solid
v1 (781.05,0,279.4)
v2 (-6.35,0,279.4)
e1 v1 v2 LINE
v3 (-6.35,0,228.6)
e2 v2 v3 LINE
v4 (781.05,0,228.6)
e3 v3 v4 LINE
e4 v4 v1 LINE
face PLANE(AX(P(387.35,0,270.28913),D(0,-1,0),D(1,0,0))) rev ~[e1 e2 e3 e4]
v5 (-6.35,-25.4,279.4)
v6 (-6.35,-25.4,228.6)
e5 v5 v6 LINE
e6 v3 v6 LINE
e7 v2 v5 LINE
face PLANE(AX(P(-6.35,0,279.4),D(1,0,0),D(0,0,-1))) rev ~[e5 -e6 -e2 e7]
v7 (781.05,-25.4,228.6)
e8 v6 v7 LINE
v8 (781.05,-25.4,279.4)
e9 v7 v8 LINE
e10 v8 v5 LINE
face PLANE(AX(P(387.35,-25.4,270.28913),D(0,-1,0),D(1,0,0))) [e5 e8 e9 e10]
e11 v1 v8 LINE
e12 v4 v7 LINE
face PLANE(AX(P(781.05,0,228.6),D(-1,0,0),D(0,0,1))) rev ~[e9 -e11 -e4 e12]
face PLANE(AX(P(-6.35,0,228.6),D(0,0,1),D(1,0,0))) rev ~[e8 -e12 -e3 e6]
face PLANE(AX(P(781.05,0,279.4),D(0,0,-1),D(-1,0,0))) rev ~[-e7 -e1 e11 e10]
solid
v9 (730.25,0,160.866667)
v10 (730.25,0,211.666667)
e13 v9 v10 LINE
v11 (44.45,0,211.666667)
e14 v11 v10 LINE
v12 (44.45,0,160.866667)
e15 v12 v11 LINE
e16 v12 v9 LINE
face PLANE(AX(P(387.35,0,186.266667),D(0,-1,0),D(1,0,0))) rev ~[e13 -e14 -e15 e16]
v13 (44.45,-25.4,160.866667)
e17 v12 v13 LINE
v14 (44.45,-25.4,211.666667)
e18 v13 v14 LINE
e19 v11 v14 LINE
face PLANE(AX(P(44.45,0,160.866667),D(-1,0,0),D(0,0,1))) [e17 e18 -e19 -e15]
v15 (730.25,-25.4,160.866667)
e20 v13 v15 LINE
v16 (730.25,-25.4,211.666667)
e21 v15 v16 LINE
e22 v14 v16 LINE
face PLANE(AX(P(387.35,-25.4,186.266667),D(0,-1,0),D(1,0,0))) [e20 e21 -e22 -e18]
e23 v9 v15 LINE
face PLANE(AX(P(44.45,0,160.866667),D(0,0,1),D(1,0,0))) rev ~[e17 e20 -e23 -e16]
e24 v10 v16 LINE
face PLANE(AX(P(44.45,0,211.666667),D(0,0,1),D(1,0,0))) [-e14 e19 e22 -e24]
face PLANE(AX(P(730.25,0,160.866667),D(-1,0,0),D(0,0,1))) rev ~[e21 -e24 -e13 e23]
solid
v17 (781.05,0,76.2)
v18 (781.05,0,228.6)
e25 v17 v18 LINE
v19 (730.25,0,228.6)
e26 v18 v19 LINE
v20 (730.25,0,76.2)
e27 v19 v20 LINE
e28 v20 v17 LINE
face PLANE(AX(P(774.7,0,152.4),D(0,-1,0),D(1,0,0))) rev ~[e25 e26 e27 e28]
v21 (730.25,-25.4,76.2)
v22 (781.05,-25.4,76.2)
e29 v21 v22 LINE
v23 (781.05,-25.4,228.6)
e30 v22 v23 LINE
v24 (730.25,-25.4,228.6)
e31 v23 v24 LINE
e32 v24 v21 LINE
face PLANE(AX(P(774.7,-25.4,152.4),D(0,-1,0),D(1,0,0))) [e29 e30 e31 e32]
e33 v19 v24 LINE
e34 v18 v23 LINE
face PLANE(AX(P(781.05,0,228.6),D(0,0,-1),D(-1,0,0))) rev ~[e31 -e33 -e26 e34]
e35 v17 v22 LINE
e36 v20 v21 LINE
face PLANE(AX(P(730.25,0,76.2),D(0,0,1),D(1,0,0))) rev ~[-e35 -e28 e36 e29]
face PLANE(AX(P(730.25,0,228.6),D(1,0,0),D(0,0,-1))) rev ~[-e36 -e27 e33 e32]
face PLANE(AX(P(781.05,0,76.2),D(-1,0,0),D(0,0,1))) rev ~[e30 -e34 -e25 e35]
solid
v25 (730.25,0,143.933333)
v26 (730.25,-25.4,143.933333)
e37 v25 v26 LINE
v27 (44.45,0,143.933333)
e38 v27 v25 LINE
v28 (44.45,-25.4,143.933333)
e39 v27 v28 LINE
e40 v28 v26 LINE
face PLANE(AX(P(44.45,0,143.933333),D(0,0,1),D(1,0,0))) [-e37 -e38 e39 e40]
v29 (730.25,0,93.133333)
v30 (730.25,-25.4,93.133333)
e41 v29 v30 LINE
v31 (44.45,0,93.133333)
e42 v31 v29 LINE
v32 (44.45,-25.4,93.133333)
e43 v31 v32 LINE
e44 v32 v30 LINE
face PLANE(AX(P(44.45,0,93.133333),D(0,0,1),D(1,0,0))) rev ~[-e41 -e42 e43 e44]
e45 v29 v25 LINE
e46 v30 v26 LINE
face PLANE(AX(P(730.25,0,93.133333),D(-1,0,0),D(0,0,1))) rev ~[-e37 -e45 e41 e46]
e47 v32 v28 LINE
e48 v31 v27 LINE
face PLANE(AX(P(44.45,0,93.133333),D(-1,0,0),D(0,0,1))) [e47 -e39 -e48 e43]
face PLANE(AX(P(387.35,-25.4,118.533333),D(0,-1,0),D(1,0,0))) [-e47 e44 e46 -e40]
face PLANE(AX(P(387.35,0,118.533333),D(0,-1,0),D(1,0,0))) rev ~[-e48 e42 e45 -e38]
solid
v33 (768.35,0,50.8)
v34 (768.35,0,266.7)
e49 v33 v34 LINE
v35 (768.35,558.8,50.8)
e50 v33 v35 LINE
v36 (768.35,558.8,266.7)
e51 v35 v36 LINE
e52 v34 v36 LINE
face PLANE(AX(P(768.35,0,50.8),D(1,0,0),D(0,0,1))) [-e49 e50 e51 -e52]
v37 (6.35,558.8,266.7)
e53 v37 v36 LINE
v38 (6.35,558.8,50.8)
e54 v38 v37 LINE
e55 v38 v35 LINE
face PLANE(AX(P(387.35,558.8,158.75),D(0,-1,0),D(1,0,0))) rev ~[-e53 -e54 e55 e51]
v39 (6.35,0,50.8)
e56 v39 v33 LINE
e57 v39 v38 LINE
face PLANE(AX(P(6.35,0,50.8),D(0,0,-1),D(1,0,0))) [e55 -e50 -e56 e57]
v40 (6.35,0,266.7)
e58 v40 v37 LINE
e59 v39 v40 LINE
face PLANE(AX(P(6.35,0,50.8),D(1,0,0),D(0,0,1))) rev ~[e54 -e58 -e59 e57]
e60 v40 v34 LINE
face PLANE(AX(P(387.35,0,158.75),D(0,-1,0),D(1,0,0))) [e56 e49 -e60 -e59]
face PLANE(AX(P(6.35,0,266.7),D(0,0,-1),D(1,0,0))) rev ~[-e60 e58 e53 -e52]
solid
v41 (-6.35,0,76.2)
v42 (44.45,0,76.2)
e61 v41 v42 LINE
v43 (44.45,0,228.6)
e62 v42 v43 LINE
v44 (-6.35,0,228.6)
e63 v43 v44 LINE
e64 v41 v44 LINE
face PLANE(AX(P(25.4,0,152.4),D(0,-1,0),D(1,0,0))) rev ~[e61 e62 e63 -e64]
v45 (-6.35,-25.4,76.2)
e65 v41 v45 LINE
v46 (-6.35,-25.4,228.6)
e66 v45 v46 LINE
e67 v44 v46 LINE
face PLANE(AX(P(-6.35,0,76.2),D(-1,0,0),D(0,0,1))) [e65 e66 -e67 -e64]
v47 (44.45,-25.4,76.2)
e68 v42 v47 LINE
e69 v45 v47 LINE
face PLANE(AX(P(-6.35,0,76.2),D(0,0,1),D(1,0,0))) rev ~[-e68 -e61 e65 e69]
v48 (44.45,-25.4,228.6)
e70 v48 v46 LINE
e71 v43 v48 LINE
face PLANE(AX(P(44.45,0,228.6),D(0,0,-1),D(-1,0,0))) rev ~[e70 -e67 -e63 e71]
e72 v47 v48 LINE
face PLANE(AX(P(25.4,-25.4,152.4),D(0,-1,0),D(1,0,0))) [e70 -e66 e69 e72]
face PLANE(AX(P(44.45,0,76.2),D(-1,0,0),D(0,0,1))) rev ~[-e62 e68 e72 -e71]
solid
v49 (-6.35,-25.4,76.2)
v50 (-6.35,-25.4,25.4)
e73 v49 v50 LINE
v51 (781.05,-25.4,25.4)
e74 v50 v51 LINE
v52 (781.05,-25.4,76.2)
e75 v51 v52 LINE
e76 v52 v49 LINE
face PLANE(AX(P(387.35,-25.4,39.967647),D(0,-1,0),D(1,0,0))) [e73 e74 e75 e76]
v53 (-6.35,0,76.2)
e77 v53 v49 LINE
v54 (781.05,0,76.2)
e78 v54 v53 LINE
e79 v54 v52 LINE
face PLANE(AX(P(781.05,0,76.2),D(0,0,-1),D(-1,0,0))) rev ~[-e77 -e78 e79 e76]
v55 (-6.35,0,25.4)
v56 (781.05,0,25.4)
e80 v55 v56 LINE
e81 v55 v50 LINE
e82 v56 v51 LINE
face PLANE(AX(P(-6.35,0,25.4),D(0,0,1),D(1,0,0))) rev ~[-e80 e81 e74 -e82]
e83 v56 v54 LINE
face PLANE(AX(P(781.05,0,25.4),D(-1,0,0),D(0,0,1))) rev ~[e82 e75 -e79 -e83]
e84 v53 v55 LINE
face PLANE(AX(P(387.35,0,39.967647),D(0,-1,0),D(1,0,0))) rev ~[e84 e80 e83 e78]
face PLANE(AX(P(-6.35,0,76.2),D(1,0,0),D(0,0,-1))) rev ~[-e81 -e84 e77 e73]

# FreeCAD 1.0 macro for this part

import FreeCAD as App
import Part
import Sketcher

V = App.Vector
Q = App.Units.Quantity

doc = App.newDocument("Part")
params = doc.addObject("Spreadsheet::Sheet", "Params")
for row, (alias, value) in enumerate([
    ("sketch1_width", "30 in"),
    ("sketch1_height", "8.5 in"),
    ("pad1_length", "22 in"),
    ("sketch2_width", "31 in"),
    ("sketch2_height", "2 in"),
    ("pad2_length", "1 in"),
    ("sketch3_width", "2 in"),
    ("sketch3_height", "6 in"),
    ("pad3_length", "1 in"),
    ("sketch4_width", "27 in"),
    ("sketch4_height", "2 in"),
    ("pad4_length", "1 in"),
    ("sketch5_width", "27 in"),
    ("sketch5_height", "2 in"),
    ("pad5_length", "1 in"),
    ("sketch6_width", "31 in"),
    ("sketch6_height", "2 in"),
    ("pad6_length", "1 in"),
    ("sketch7_width", "2 in"),
    ("sketch7_height", "6 in"),
    ("pad7_length", "1 in"),
], start=1):
    params.set(f"A{row}", alias)
    params.set(f"B{row}", "=" + value)
    params.setAlias(f"B{row}", alias)

body = doc.addObject("PartDesign::Body", "Body")

sketch1 = body.newObject("Sketcher::SketchObject", "Sketch")
sketch1.AttachmentSupport = (doc.getObject("XZ_Plane"), [""])
sketch1.MapMode = "FlatFace"
sketch1.addGeometry(Part.LineSegment(V(6, 267, 0), V(6, 51, 0)), False)
sketch1.addGeometry(Part.LineSegment(V(6, 51, 0), V(768, 51, 0)), False)
sketch1.addGeometry(Part.LineSegment(V(768, 51, 0), V(768, 267, 0)), False)
sketch1.addGeometry(Part.LineSegment(V(768, 267, 0), V(6, 267, 0)), False)
sketch1.addConstraint(Sketcher.Constraint("Coincident", 0, 2, 1, 1))
sketch1.addConstraint(Sketcher.Constraint("Coincident", 1, 2, 2, 1))
sketch1.addConstraint(Sketcher.Constraint("Coincident", 2, 2, 3, 1))
sketch1.addConstraint(Sketcher.Constraint("Coincident", 3, 2, 0, 1))
sketch1.addConstraint(Sketcher.Constraint("Vertical", 0))
sketch1.addConstraint(Sketcher.Constraint("Horizontal", 1))
sketch1.addConstraint(Sketcher.Constraint("Vertical", 2))
sketch1.addConstraint(Sketcher.Constraint("Horizontal", 3))
sketch1.addConstraint(Sketcher.Constraint("DistanceX", 1, 1, 1, 2, Q("30 in")))
sketch1.addConstraint(Sketcher.Constraint("DistanceY", 0, 2, 0, 1, Q("8.5 in")))
sketch1.addConstraint(Sketcher.Constraint("DistanceY", -1, 1, 0, 2, Q("2 in")))
sketch1.addConstraint(Sketcher.Constraint("DistanceX", -1, 1, 0, 2, Q("0.25 in")))
sketch1.setExpression("Constraints[8]", "Params.sketch1_width")
sketch1.setExpression("Constraints[9]", "Params.sketch1_height")
pad1 = body.newObject("PartDesign::Pad", "Pad")
pad1.Profile = sketch1
pad1.setExpression("Length", "Params.pad1_length")
pad1.Reversed = True
body2 = doc.addObject("PartDesign::Body", "Body001")

sketch2 = body2.newObject("Sketcher::SketchObject", "Sketch001")
sketch2.AttachmentSupport = (doc.getObject("XZ_Plane001"), [""])
sketch2.MapMode = "FlatFace"
sketch2.addGeometry(Part.LineSegment(V(-6, 229, 0), V(781, 229, 0)), False)
sketch2.addGeometry(Part.LineSegment(V(781, 229, 0), V(781, 279, 0)), False)
sketch2.addGeometry(Part.LineSegment(V(781, 279, 0), V(-6, 279, 0)), False)
sketch2.addGeometry(Part.LineSegment(V(-6, 279, 0), V(-6, 229, 0)), False)
sketch2.addConstraint(Sketcher.Constraint("Coincident", 0, 2, 1, 1))
sketch2.addConstraint(Sketcher.Constraint("Coincident", 1, 2, 2, 1))
sketch2.addConstraint(Sketcher.Constraint("Coincident", 2, 2, 3, 1))
sketch2.addConstraint(Sketcher.Constraint("Coincident", 3, 2, 0, 1))
sketch2.addConstraint(Sketcher.Constraint("Horizontal", 0))
sketch2.addConstraint(Sketcher.Constraint("Vertical", 1))
sketch2.addConstraint(Sketcher.Constraint("Horizontal", 2))
sketch2.addConstraint(Sketcher.Constraint("Vertical", 3))
sketch2.addConstraint(Sketcher.Constraint("DistanceX", 0, 1, 0, 2, Q("31 in")))
sketch2.addConstraint(Sketcher.Constraint("DistanceY", 1, 1, 1, 2, Q("2 in")))
sketch2.addConstraint(Sketcher.Constraint("DistanceY", -1, 1, 0, 2, Q("9 in")))
sketch2.addConstraint(Sketcher.Constraint("DistanceX", -1, 1, 0, 2, Q("30.75 in")))
sketch2.setExpression("Constraints[8]", "Params.sketch2_width")
sketch2.setExpression("Constraints[9]", "Params.sketch2_height")
pad2 = body2.newObject("PartDesign::Pad", "Pad001")
pad2.Profile = sketch2
pad2.setExpression("Length", "Params.pad2_length")
body3 = doc.addObject("PartDesign::Body", "Body002")

sketch3 = body3.newObject("Sketcher::SketchObject", "Sketch002")
sketch3.AttachmentSupport = (doc.getObject("XZ_Plane002"), [""])
sketch3.MapMode = "FlatFace"
sketch3.addGeometry(Part.LineSegment(V(781, 76, 0), V(781, 229, 0)), False)
sketch3.addGeometry(Part.LineSegment(V(781, 229, 0), V(730, 229, 0)), False)
sketch3.addGeometry(Part.LineSegment(V(730, 229, 0), V(730, 76, 0)), False)
sketch3.addGeometry(Part.LineSegment(V(730, 76, 0), V(781, 76, 0)), False)
sketch3.addConstraint(Sketcher.Constraint("Coincident", 0, 2, 1, 1))
sketch3.addConstraint(Sketcher.Constraint("Coincident", 1, 2, 2, 1))
sketch3.addConstraint(Sketcher.Constraint("Coincident", 2, 2, 3, 1))
sketch3.addConstraint(Sketcher.Constraint("Coincident", 3, 2, 0, 1))
sketch3.addConstraint(Sketcher.Constraint("Vertical", 0))
sketch3.addConstraint(Sketcher.Constraint("Horizontal", 1))
sketch3.addConstraint(Sketcher.Constraint("Vertical", 2))
sketch3.addConstraint(Sketcher.Constraint("Horizontal", 3))
sketch3.addConstraint(Sketcher.Constraint("DistanceX", 1, 2, 1, 1, Q("2 in")))
sketch3.addConstraint(Sketcher.Constraint("DistanceY", 0, 1, 0, 2, Q("6 in")))
sketch3.addConstraint(Sketcher.Constraint("DistanceY", -1, 1, 0, 2, Q("9 in")))
sketch3.addConstraint(Sketcher.Constraint("DistanceX", -1, 1, 0, 2, Q("30.75 in")))
sketch3.setExpression("Constraints[8]", "Params.sketch3_width")
sketch3.setExpression("Constraints[9]", "Params.sketch3_height")
pad3 = body3.newObject("PartDesign::Pad", "Pad002")
pad3.Profile = sketch3
pad3.setExpression("Length", "Params.pad3_length")
body4 = doc.addObject("PartDesign::Body", "Body003")

sketch4 = body4.newObject("Sketcher::SketchObject", "Sketch003")
sketch4.AttachmentSupport = (doc.getObject("XZ_Plane003"), [""])
sketch4.MapMode = "FlatFace"
sketch4.addGeometry(Part.LineSegment(V(44, 212, 0), V(44, 161, 0)), False)
sketch4.addGeometry(Part.LineSegment(V(44, 161, 0), V(730, 161, 0)), False)
sketch4.addGeometry(Part.LineSegment(V(730, 161, 0), V(730, 212, 0)), False)
sketch4.addGeometry(Part.LineSegment(V(730, 212, 0), V(44, 212, 0)), False)
sketch4.addConstraint(Sketcher.Constraint("Coincident", 0, 2, 1, 1))
sketch4.addConstraint(Sketcher.Constraint("Coincident", 1, 2, 2, 1))
sketch4.addConstraint(Sketcher.Constraint("Coincident", 2, 2, 3, 1))
sketch4.addConstraint(Sketcher.Constraint("Coincident", 3, 2, 0, 1))
sketch4.addConstraint(Sketcher.Constraint("Vertical", 0))
sketch4.addConstraint(Sketcher.Constraint("Horizontal", 1))
sketch4.addConstraint(Sketcher.Constraint("Vertical", 2))
sketch4.addConstraint(Sketcher.Constraint("Horizontal", 3))
sketch4.addConstraint(Sketcher.Constraint("DistanceX", 1, 1, 1, 2, Q("27 in")))
sketch4.addConstraint(Sketcher.Constraint("DistanceY", 0, 2, 0, 1, Q("2 in")))
sketch4.addConstraint(Sketcher.Constraint("DistanceX", -1, 1, 0, 2, Q("1.75 in")))
sketch4.addConstraint(Sketcher.Constraint("DistanceY", -1, 1, 0, 2, 160.866667))
sketch4.setExpression("Constraints[8]", "Params.sketch4_width")
sketch4.setExpression("Constraints[9]", "Params.sketch4_height")
pad4 = body4.newObject("PartDesign::Pad", "Pad003")
pad4.Profile = sketch4
pad4.setExpression("Length", "Params.pad4_length")
body5 = doc.addObject("PartDesign::Body", "Body004")

sketch5 = body5.newObject("Sketcher::SketchObject", "Sketch004")
sketch5.AttachmentSupport = (doc.getObject("XZ_Plane004"), [""])
sketch5.MapMode = "FlatFace"
sketch5.addGeometry(Part.LineSegment(V(44, 144, 0), V(44, 93, 0)), False)
sketch5.addGeometry(Part.LineSegment(V(44, 93, 0), V(730, 93, 0)), False)
sketch5.addGeometry(Part.LineSegment(V(730, 93, 0), V(730, 144, 0)), False)
sketch5.addGeometry(Part.LineSegment(V(730, 144, 0), V(44, 144, 0)), False)
sketch5.addConstraint(Sketcher.Constraint("Coincident", 0, 2, 1, 1))
sketch5.addConstraint(Sketcher.Constraint("Coincident", 1, 2, 2, 1))
sketch5.addConstraint(Sketcher.Constraint("Coincident", 2, 2, 3, 1))
sketch5.addConstraint(Sketcher.Constraint("Coincident", 3, 2, 0, 1))
sketch5.addConstraint(Sketcher.Constraint("Vertical", 0))
sketch5.addConstraint(Sketcher.Constraint("Horizontal", 1))
sketch5.addConstraint(Sketcher.Constraint("Vertical", 2))
sketch5.addConstraint(Sketcher.Constraint("Horizontal", 3))
sketch5.addConstraint(Sketcher.Constraint("DistanceX", 1, 1, 1, 2, Q("27 in")))
sketch5.addConstraint(Sketcher.Constraint("DistanceY", 0, 2, 0, 1, Q("2 in")))
sketch5.addConstraint(Sketcher.Constraint("DistanceX", -1, 1, 0, 2, Q("1.75 in")))
sketch5.addConstraint(Sketcher.Constraint("DistanceY", -1, 1, 0, 2, 93.133333))
sketch5.setExpression("Constraints[8]", "Params.sketch5_width")
sketch5.setExpression("Constraints[9]", "Params.sketch5_height")
pad5 = body5.newObject("PartDesign::Pad", "Pad004")
pad5.Profile = sketch5
pad5.setExpression("Length", "Params.pad5_length")
body6 = doc.addObject("PartDesign::Body", "Body005")

sketch6 = body6.newObject("Sketcher::SketchObject", "Sketch005")
sketch6.AttachmentSupport = (doc.getObject("XZ_Plane005"), [""])
sketch6.MapMode = "FlatFace"
sketch6.addGeometry(Part.LineSegment(V(-6, 76, 0), V(-6, 25, 0)), False)
sketch6.addGeometry(Part.LineSegment(V(-6, 25, 0), V(781, 25, 0)), False)
sketch6.addGeometry(Part.LineSegment(V(781, 25, 0), V(781, 76, 0)), False)
sketch6.addGeometry(Part.LineSegment(V(781, 76, 0), V(-6, 76, 0)), False)
sketch6.addConstraint(Sketcher.Constraint("Coincident", 0, 2, 1, 1))
sketch6.addConstraint(Sketcher.Constraint("Coincident", 1, 2, 2, 1))
sketch6.addConstraint(Sketcher.Constraint("Coincident", 2, 2, 3, 1))
sketch6.addConstraint(Sketcher.Constraint("Coincident", 3, 2, 0, 1))
sketch6.addConstraint(Sketcher.Constraint("Vertical", 0))
sketch6.addConstraint(Sketcher.Constraint("Horizontal", 1))
sketch6.addConstraint(Sketcher.Constraint("Vertical", 2))
sketch6.addConstraint(Sketcher.Constraint("Horizontal", 3))
sketch6.addConstraint(Sketcher.Constraint("DistanceX", 1, 1, 1, 2, Q("31 in")))
sketch6.addConstraint(Sketcher.Constraint("DistanceY", 0, 2, 0, 1, Q("2 in")))
sketch6.addConstraint(Sketcher.Constraint("DistanceY", -1, 1, 0, 2, Q("1 in")))
sketch6.addConstraint(Sketcher.Constraint("DistanceX", 0, 2, -1, 1, Q("0.25 in")))
sketch6.setExpression("Constraints[8]", "Params.sketch6_width")
sketch6.setExpression("Constraints[9]", "Params.sketch6_height")
pad6 = body6.newObject("PartDesign::Pad", "Pad005")
pad6.Profile = sketch6
pad6.setExpression("Length", "Params.pad6_length")
body7 = doc.addObject("PartDesign::Body", "Body006")

sketch7 = body7.newObject("Sketcher::SketchObject", "Sketch006")
sketch7.AttachmentSupport = (doc.getObject("XZ_Plane006"), [""])
sketch7.MapMode = "FlatFace"
sketch7.addGeometry(Part.LineSegment(V(44, 229, 0), V(-6, 229, 0)), False)
sketch7.addGeometry(Part.LineSegment(V(-6, 229, 0), V(-6, 76, 0)), False)
sketch7.addGeometry(Part.LineSegment(V(-6, 76, 0), V(44, 76, 0)), False)
sketch7.addGeometry(Part.LineSegment(V(44, 76, 0), V(44, 229, 0)), False)
sketch7.addConstraint(Sketcher.Constraint("Coincident", 0, 2, 1, 1))
sketch7.addConstraint(Sketcher.Constraint("Coincident", 1, 2, 2, 1))
sketch7.addConstraint(Sketcher.Constraint("Coincident", 2, 2, 3, 1))
sketch7.addConstraint(Sketcher.Constraint("Coincident", 3, 2, 0, 1))
sketch7.addConstraint(Sketcher.Constraint("Horizontal", 0))
sketch7.addConstraint(Sketcher.Constraint("Vertical", 1))
sketch7.addConstraint(Sketcher.Constraint("Horizontal", 2))
sketch7.addConstraint(Sketcher.Constraint("Vertical", 3))
sketch7.addConstraint(Sketcher.Constraint("DistanceX", 0, 2, 0, 1, Q("2 in")))
sketch7.addConstraint(Sketcher.Constraint("DistanceY", 1, 2, 1, 1, Q("6 in")))
sketch7.addConstraint(Sketcher.Constraint("DistanceY", -1, 1, 0, 2, Q("9 in")))
sketch7.addConstraint(Sketcher.Constraint("DistanceX", 0, 2, -1, 1, Q("0.25 in")))
sketch7.setExpression("Constraints[8]", "Params.sketch7_width")
sketch7.setExpression("Constraints[9]", "Params.sketch7_height")
pad7 = body7.newObject("PartDesign::Pad", "Pad006")
pad7.Profile = sketch7
pad7.setExpression("Length", "Params.pad7_length")

doc.recompute()
